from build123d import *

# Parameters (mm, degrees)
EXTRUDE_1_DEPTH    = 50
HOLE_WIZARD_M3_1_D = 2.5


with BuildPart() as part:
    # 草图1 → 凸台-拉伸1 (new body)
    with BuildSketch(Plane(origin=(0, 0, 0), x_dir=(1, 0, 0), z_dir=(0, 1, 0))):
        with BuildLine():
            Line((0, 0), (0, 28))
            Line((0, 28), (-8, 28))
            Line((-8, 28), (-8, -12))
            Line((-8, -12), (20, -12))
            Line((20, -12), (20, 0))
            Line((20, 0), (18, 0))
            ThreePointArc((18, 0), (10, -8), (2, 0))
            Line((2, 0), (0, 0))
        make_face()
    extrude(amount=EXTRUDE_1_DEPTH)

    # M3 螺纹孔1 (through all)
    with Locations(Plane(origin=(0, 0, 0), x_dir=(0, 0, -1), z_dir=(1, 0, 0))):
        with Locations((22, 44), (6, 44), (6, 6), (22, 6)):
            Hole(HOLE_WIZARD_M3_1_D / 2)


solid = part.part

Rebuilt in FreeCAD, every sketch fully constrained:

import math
import FreeCAD as App
import Part
import Sketcher

doc = App.newDocument("Part")
body = doc.addObject("PartDesign::Body", "Body")

# Sketch on XZ plane
sketch1 = body.newObject("Sketcher::SketchObject", "Sketch")
sketch1.AttachmentSupport = (doc.getObject("XZ_Plane"), [""])
sketch1.MapMode = "FlatFace"
sketch1.addGeometry([
    Part.LineSegment(App.Vector(0, 0, 0), App.Vector(0, -28, 0)),  # 0
    Part.LineSegment(App.Vector(0, -28, 0), App.Vector(-8, -28, 0)),  # 1
    Part.LineSegment(App.Vector(-8, -28, 0), App.Vector(-8, 12, 0)),  # 2
    Part.LineSegment(App.Vector(-8, 12, 0), App.Vector(20, 12, 0)),  # 3
    Part.LineSegment(App.Vector(20, 12, 0), App.Vector(20, 0, 0)),  # 4
    Part.LineSegment(App.Vector(20, 0, 0), App.Vector(18, 0, 0)),  # 5
    Part.ArcOfCircle(Part.Circle(App.Vector(10, 0, 0), App.Vector(0, 0, 1), 8), math.radians(0), math.radians(180)),  # 6
    Part.LineSegment(App.Vector(2, 0, 0), App.Vector(0, 0, 0)),  # 7
], False)
sketch1.addConstraint([
    Sketcher.Constraint("Coincident", 0, 2, 1, 1),
    Sketcher.Constraint("Coincident", 1, 2, 2, 1),
    Sketcher.Constraint("Coincident", 2, 2, 3, 1),
    Sketcher.Constraint("Coincident", 3, 2, 4, 1),
    Sketcher.Constraint("Coincident", 4, 2, 5, 1),
    Sketcher.Constraint("Coincident", 5, 2, 6, 1),
    Sketcher.Constraint("Coincident", 6, 2, 7, 1),
    Sketcher.Constraint("Coincident", 7, 2, 0, 1),
    Sketcher.Constraint("Vertical", 0),
    Sketcher.Constraint("Horizontal", 1),
    Sketcher.Constraint("Vertical", 2),
    Sketcher.Constraint("Horizontal", 3),
    Sketcher.Constraint("Vertical", 4),
    Sketcher.Constraint("Horizontal", 5),
    Sketcher.Constraint("Horizontal", 7),
    Sketcher.Constraint("Coincident", 7, 2, -1, 1),
    Sketcher.Constraint("PointOnObject", 6, 3, -1),
    Sketcher.Constraint("PointOnObject", 4, 2, -1),
    Sketcher.Constraint("Equal", 5, 7),
    Sketcher.Constraint("Equal", 3, 0),
    Sketcher.Constraint("Radius", 6, 8.0),
    Sketcher.Constraint("DistanceX", 1, 2, 1, 1, 8.0),
    Sketcher.Constraint("DistanceX", 3, 1, 3, 2, 28.0),
    Sketcher.Constraint("DistanceY", 2, 1, 2, 2, 40.0),
])
pad1 = body.newObject("PartDesign::Pad", "Pad")
pad1.Profile = sketch1
pad1.Length = 50
pad1.Reversed = True

# Sketch on YZ plane
sketch2 = body.newObject("Sketcher::SketchObject", "Sketch001")
sketch2.AttachmentSupport = (doc.getObject("YZ_Plane"), [""])
sketch2.MapMode = "FlatFace"
sketch2.addGeometry([
    Part.Circle(App.Vector(44, -22, 0), App.Vector(0, 0, 1), 1.2),
    Part.Circle(App.Vector(44, -6, 0), App.Vector(0, 0, 1), 1.2),
    Part.Circle(App.Vector(6, -6, 0), App.Vector(0, 0, 1), 1.2),
    Part.Circle(App.Vector(6, -22, 0), App.Vector(0, 0, 1), 1.2),
], False)
sketch2.addConstraint([
    Sketcher.Constraint("Equal", 0, 1),
    Sketcher.Constraint("Equal", 1, 2),
    Sketcher.Constraint("Equal", 2, 3),
    Sketcher.Constraint("Horizontal", 1, 3, 2, 3),
    Sketcher.Constraint("Horizontal", 0, 3, 3, 3),
    Sketcher.Constraint("Vertical", 0, 3, 1, 3),
    Sketcher.Constraint("Vertical", 2, 3, 3, 3),
    Sketcher.Constraint("Diameter", 0, 2.5),
    Sketcher.Constraint("DistanceX", -1, 1, 0, 3, 44.0),
    Sketcher.Constraint("DistanceY", 0, 3, -1, 1, 22.0),
    Sketcher.Constraint("DistanceY", 1, 3, -1, 1, 6.0),
    Sketcher.Constraint("DistanceX", -1, 1, 2, 3, 6.0),
])
doc.recompute()
hole = body.newObject("PartDesign::Hole", "Hole")
hole.Profile = sketch2
hole.ThreadType = "None"
hole.Diameter = 2.5
hole.DepthType = "ThroughAll"

doc.recompute()
